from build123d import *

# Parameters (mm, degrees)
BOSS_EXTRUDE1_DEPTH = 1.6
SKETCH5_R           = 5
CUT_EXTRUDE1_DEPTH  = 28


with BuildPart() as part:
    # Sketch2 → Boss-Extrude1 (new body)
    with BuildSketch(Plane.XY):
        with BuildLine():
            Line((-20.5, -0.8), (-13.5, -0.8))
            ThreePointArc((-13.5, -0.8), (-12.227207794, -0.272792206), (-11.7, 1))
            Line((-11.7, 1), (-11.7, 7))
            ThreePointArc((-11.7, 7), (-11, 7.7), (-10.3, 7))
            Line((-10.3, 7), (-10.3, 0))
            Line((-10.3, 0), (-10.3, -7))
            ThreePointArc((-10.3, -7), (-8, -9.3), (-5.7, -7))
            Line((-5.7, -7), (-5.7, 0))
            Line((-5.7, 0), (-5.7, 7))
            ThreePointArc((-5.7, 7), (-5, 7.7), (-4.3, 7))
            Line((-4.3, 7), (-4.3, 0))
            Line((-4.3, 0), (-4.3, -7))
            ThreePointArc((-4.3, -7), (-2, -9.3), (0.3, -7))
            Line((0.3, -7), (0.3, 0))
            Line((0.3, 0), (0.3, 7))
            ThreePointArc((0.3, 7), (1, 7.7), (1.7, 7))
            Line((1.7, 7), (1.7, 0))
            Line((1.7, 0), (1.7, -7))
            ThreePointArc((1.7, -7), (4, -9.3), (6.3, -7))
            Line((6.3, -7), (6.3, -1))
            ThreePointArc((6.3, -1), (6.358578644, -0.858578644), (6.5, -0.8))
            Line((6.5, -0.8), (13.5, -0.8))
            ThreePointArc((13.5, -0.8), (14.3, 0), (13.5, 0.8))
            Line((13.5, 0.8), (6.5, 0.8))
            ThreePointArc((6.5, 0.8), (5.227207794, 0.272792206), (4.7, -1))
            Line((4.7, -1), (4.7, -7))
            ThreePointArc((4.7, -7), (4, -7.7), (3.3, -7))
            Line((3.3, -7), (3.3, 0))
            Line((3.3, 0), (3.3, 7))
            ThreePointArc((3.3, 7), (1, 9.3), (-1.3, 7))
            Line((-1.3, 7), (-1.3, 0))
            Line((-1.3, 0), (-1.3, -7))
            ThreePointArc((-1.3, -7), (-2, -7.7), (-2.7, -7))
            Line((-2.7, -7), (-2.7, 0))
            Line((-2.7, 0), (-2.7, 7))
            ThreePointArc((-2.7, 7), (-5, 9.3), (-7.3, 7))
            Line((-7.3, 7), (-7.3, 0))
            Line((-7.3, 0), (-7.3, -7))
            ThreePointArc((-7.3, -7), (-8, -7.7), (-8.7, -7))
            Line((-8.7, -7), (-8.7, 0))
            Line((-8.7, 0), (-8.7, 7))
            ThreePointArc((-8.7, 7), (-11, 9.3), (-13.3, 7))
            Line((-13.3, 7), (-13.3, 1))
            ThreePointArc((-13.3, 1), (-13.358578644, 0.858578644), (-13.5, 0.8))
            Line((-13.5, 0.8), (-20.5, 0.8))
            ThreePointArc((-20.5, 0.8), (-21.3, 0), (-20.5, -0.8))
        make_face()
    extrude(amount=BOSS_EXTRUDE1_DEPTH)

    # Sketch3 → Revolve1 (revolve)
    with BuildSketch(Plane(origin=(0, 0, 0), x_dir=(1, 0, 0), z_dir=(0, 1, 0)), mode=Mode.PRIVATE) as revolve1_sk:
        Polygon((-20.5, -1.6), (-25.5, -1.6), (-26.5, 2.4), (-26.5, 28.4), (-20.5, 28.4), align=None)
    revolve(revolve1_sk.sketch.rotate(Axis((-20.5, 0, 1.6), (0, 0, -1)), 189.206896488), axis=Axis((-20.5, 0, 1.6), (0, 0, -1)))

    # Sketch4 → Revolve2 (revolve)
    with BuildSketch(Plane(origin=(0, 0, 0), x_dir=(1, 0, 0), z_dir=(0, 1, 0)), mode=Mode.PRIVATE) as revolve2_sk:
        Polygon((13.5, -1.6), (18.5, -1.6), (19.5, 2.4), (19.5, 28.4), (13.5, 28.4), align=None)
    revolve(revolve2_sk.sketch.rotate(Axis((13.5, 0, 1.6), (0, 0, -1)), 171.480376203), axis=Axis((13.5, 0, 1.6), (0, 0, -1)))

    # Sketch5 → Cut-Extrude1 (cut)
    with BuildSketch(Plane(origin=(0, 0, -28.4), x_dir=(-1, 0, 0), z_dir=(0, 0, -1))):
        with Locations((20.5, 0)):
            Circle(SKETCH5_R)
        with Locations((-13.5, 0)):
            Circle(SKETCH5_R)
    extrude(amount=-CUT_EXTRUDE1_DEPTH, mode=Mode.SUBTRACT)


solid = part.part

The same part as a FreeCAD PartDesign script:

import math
import FreeCAD as App
import Part
import Sketcher

V = App.Vector
Q = App.Units.Quantity


def add_polygon(sketch, points):
    """Adds a closed chain of lines whose ends are joined by coincident constraints."""
    first, n = sketch.GeometryCount, len(points)
    for a, b in zip(points, points[1:] + points[:1]):
        sketch.addGeometry(Part.LineSegment(App.Vector(*a, 0), App.Vector(*b, 0)), False)
    for i in range(n):
        sketch.addConstraint(Sketcher.Constraint("Coincident", first + i, 2, first + (i + 1) % n, 1))

doc = App.newDocument("Part")
params = doc.addObject("Spreadsheet::Sheet", "Params")
for row, (alias, value) in enumerate([
    ("sketch1_radius", "1.8 mm"),
    ("sketch1_radius2", "0.7 mm"),
    ("sketch1_radius3", "2.3 mm"),
    ("sketch1_width", "7 mm"),
    ("sketch1_height", "6 mm"),
    ("pad1_length", "1.6 mm"),
    ("sketch2_width", "5 mm"),
    ("sketch2_width2", "6 mm"),
    ("sketch2_height", "30 mm"),
    ("sketch2_height2", "26 mm"),
    ("revolution_angle", "360 deg"),
    ("sketch3_width", "5 mm"),
    ("sketch3_width2", "6 mm"),
    ("sketch3_height", "26 mm"),
    ("sketch3_height2", "30 mm"),
    ("revolution2_angle", "360 deg"),
    ("sketch4_diameter", "10 mm"),
    ("pocket1_length", "28 mm"),
], start=1):
    params.set(f"A{row}", alias)
    params.set(f"B{row}", "=" + value)
    params.setAlias(f"B{row}", alias)

body = doc.addObject("PartDesign::Body", "Body")

sketch1 = body.newObject("Sketcher::SketchObject", "Sketch")
sketch1.AttachmentSupport = (doc.getObject("XY_Plane"), [""])
sketch1.MapMode = "FlatFace"
sketch1.addGeometry(Part.LineSegment(V(-20.5, -0.8, 0), V(-13.5, -0.8, 0)), False)
sketch1.addGeometry(Part.ArcOfCircle(Part.Circle(V(-13.5, 1, 0), V(0, 0, 1), 1.8), math.radians(-90), math.radians(0)), False)
sketch1.addGeometry(Part.LineSegment(V(-11.7, 1, 0), V(-11.7, 7, 0)), False)
sketch1.addGeometry(Part.ArcOfCircle(Part.Circle(V(-11, 7, 0), V(0, 0, 1), 0.7), math.radians(0), math.radians(180)), False)
sketch1.addGeometry(Part.LineSegment(V(-10.3, 7, 0), V(-10.3, -7, 0)), False)
sketch1.addGeometry(Part.ArcOfCircle(Part.Circle(V(-8, -7, 0), V(0, 0, 1), 2.3), math.radians(180), math.radians(360)), False)
sketch1.addGeometry(Part.LineSegment(V(-5.7, -7, 0), V(-5.7, 7, 0)), False)
sketch1.addGeometry(Part.ArcOfCircle(Part.Circle(V(-5, 7, 0), V(0, 0, 1), 0.7), math.radians(0), math.radians(180)), False)
sketch1.addGeometry(Part.LineSegment(V(-4.3, 7, 0), V(-4.3, -7, 0)), False)
sketch1.addGeometry(Part.ArcOfCircle(Part.Circle(V(-2, -7, 0), V(0, 0, 1), 2.3), math.radians(180), math.radians(360)), False)
sketch1.addGeometry(Part.LineSegment(V(0.3, -7, 0), V(0.3, 7, 0)), False)
sketch1.addGeometry(Part.ArcOfCircle(Part.Circle(V(1, 7, 0), V(0, 0, 1), 0.7), math.radians(0), math.radians(180)), False)
sketch1.addGeometry(Part.LineSegment(V(1.7, 7, 0), V(1.7, -7, 0)), False)
sketch1.addGeometry(Part.ArcOfCircle(Part.Circle(V(4, -7, 0), V(0, 0, 1), 2.3), math.radians(180), math.radians(360)), False)
sketch1.addGeometry(Part.LineSegment(V(6.3, -7, 0), V(6.3, -1, 0)), False)
sketch1.addGeometry(Part.ArcOfCircle(Part.Circle(V(6.5, -1, 0), V(0, 0, 1), 0.2), math.radians(90), math.radians(180)), False)
sketch1.addGeometry(Part.LineSegment(V(6.5, -0.8, 0), V(13.5, -0.8, 0)), False)
sketch1.addGeometry(Part.ArcOfCircle(Part.Circle(V(13.5, 0, 0), V(0, 0, 1), 0.8), math.radians(-90), math.radians(90)), False)
sketch1.addGeometry(Part.LineSegment(V(13.5, 0.8, 0), V(6.5, 0.8, 0)), False)
sketch1.addGeometry(Part.ArcOfCircle(Part.Circle(V(6.5, -1, 0), V(0, 0, 1), 1.8), math.radians(90), math.radians(180)), False)
sketch1.addGeometry(Part.LineSegment(V(4.7, -1, 0), V(4.7, -7, 0)), False)
sketch1.addGeometry(Part.ArcOfCircle(Part.Circle(V(4, -7, 0), V(0, 0, 1), 0.7), math.radians(180), math.radians(360)), False)
sketch1.addGeometry(Part.LineSegment(V(3.3, -7, 0), V(3.3, 7, 0)), False)
sketch1.addGeometry(Part.ArcOfCircle(Part.Circle(V(1, 7, 0), V(0, 0, 1), 2.3), math.radians(0), math.radians(180)), False)
sketch1.addGeometry(Part.LineSegment(V(-1.3, 7, 0), V(-1.3, -7, 0)), False)
sketch1.addGeometry(Part.ArcOfCircle(Part.Circle(V(-2, -7, 0), V(0, 0, 1), 0.7), math.radians(180), math.radians(360)), False)
sketch1.addGeometry(Part.LineSegment(V(-2.7, -7, 0), V(-2.7, 7, 0)), False)
sketch1.addGeometry(Part.ArcOfCircle(Part.Circle(V(-5, 7, 0), V(0, 0, 1), 2.3), math.radians(0), math.radians(180)), False)
sketch1.addGeometry(Part.LineSegment(V(-7.3, 7, 0), V(-7.3, -7, 0)), False)
sketch1.addGeometry(Part.ArcOfCircle(Part.Circle(V(-8, -7, 0), V(0, 0, 1), 0.7), math.radians(180), math.radians(360)), False)
sketch1.addGeometry(Part.LineSegment(V(-8.7, -7, 0), V(-8.7, 7, 0)), False)
sketch1.addGeometry(Part.ArcOfCircle(Part.Circle(V(-11, 7, 0), V(0, 0, 1), 2.3), math.radians(0), math.radians(180)), False)
sketch1.addGeometry(Part.LineSegment(V(-13.3, 7, 0), V(-13.3, 1, 0)), False)
sketch1.addGeometry(Part.ArcOfCircle(Part.Circle(V(-13.5, 1, 0), V(0, 0, 1), 0.2), math.radians(-90), math.radians(0)), False)
sketch1.addGeometry(Part.LineSegment(V(-13.5, 0.8, 0), V(-20.5, 0.8, 0)), False)
sketch1.addGeometry(Part.ArcOfCircle(Part.Circle(V(-20.5, 0, 0), V(0, 0, 1), 0.8), math.radians(90), math.radians(270)), False)
sketch1.addConstraint(Sketcher.Constraint("Tangent", 0, 2, 1, 1))
sketch1.addConstraint(Sketcher.Constraint("Tangent", 1, 2, 2, 1))
sketch1.addConstraint(Sketcher.Constraint("Tangent", 2, 2, 3, 2))
sketch1.addConstraint(Sketcher.Constraint("Tangent", 3, 1, 4, 1))
sketch1.addConstraint(Sketcher.Constraint("Tangent", 4, 2, 5, 1))
sketch1.addConstraint(Sketcher.Constraint("Tangent", 5, 2, 6, 1))
sketch1.addConstraint(Sketcher.Constraint("Tangent", 6, 2, 7, 2))
sketch1.addConstraint(Sketcher.Constraint("Tangent", 7, 1, 8, 1))
sketch1.addConstraint(Sketcher.Constraint("Tangent", 8, 2, 9, 1))
sketch1.addConstraint(Sketcher.Constraint("Tangent", 9, 2, 10, 1))
sketch1.addConstraint(Sketcher.Constraint("Tangent", 10, 2, 11, 2))
sketch1.addConstraint(Sketcher.Constraint("Tangent", 11, 1, 12, 1))
sketch1.addConstraint(Sketcher.Constraint("Tangent", 12, 2, 13, 1))
sketch1.addConstraint(Sketcher.Constraint("Tangent", 13, 2, 14, 1))
sketch1.addConstraint(Sketcher.Constraint("Tangent", 14, 2, 15, 2))
sketch1.addConstraint(Sketcher.Constraint("Tangent", 15, 1, 16, 1))
sketch1.addConstraint(Sketcher.Constraint("Tangent", 16, 2, 17, 1))
sketch1.addConstraint(Sketcher.Constraint("Tangent", 17, 2, 18, 1))
sketch1.addConstraint(Sketcher.Constraint("Tangent", 18, 2, 19, 1))
sketch1.addConstraint(Sketcher.Constraint("Tangent", 19, 2, 20, 1))
sketch1.addConstraint(Sketcher.Constraint("Tangent", 20, 2, 21, 2))
sketch1.addConstraint(Sketcher.Constraint("Tangent", 21, 1, 22, 1))
sketch1.addConstraint(Sketcher.Constraint("Tangent", 22, 2, 23, 1))
sketch1.addConstraint(Sketcher.Constraint("Tangent", 23, 2, 24, 1))
sketch1.addConstraint(Sketcher.Constraint("Tangent", 24, 2, 25, 2))
sketch1.addConstraint(Sketcher.Constraint("Tangent", 25, 1, 26, 1))
sketch1.addConstraint(Sketcher.Constraint("Tangent", 26, 2, 27, 1))
sketch1.addConstraint(Sketcher.Constraint("Tangent", 27, 2, 28, 1))
sketch1.addConstraint(Sketcher.Constraint("Tangent", 28, 2, 29, 2))
sketch1.addConstraint(Sketcher.Constraint("Tangent", 29, 1, 30, 1))
sketch1.addConstraint(Sketcher.Constraint("Tangent", 30, 2, 31, 1))
sketch1.addConstraint(Sketcher.Constraint("Tangent", 31, 2, 32, 1))
sketch1.addConstraint(Sketcher.Constraint("Tangent", 32, 2, 33, 2))
sketch1.addConstraint(Sketcher.Constraint("Tangent", 33, 1, 34, 1))
sketch1.addConstraint(Sketcher.Constraint("Tangent", 34, 2, 35, 1))
sketch1.addConstraint(Sketcher.Constraint("Tangent", 35, 2, 0, 1))
sketch1.addConstraint(Sketcher.Constraint("Horizontal", 0))
sketch1.addConstraint(Sketcher.Constraint("Vertical", 2))
sketch1.addConstraint(Sketcher.Constraint("Vertical", 4))
sketch1.addConstraint(Sketcher.Constraint("Vertical", 6))
sketch1.addConstraint(Sketcher.Constraint("Vertical", 8))
sketch1.addConstraint(Sketcher.Constraint("Vertical", 10))
sketch1.addConstraint(Sketcher.Constraint("Vertical", 12))
sketch1.addConstraint(Sketcher.Constraint("Vertical", 14))
sketch1.addConstraint(Sketcher.Constraint("Horizontal", 16))
sketch1.addConstraint(Sketcher.Constraint("Horizontal", 18))
sketch1.addConstraint(Sketcher.Constraint("Vertical", 20))
sketch1.addConstraint(Sketcher.Constraint("Vertical", 22))
sketch1.addConstraint(Sketcher.Constraint("Vertical", 24))
sketch1.addConstraint(Sketcher.Constraint("Vertical", 26))
sketch1.addConstraint(Sketcher.Constraint("Vertical", 28))
sketch1.addConstraint(Sketcher.Constraint("Vertical", 30))
sketch1.addConstraint(Sketcher.Constraint("Vertical", 32))
sketch1.addConstraint(Sketcher.Constraint("Horizontal", 34))
sketch1.addConstraint(Sketcher.Constraint("Coincident", 19, 3, 15, 3))
sketch1.addConstraint(Sketcher.Constraint("Coincident", 21, 3, 13, 3))
sketch1.addConstraint(Sketcher.Constraint("Coincident", 23, 3, 11, 3))
sketch1.addConstraint(Sketcher.Constraint("Coincident", 25, 3, 9, 3))
sketch1.addConstraint(Sketcher.Constraint("Coincident", 27, 3, 7, 3))
sketch1.addConstraint(Sketcher.Constraint("Coincident", 29, 3, 5, 3))
sketch1.addConstraint(Sketcher.Constraint("Coincident", 31, 3, 3, 3))
sketch1.addConstraint(Sketcher.Constraint("Coincident", 33, 3, 1, 3))
sketch1.addConstraint(Sketcher.Constraint("Equal", 3, 7))
sketch1.addConstraint(Sketcher.Constraint("Equal", 5, 9))
sketch1.addConstraint(Sketcher.Constraint("Equal", 7, 11))
sketch1.addConstraint(Sketcher.Constraint("Equal", 9, 13))
sketch1.addConstraint(Sketcher.Constraint("Equal", 1, 19))
sketch1.addConstraint(Sketcher.Constraint("Equal", 11, 21))
sketch1.addConstraint(Sketcher.Constraint("Symmetric", 0, 2, 17, 2, -1, 1))
sketch1.addConstraint(Sketcher.Constraint("PointOnObject", 17, 3, -1))
sketch1.addConstraint(Sketcher.Constraint("Horizontal", 3, 3, 7, 3))
sketch1.addConstraint(Sketcher.Constraint("Horizontal", 5, 3, 9, 3))
sketch1.addConstraint(Sketcher.Constraint("Horizontal", 7, 3, 11, 3))
sketch1.addConstraint(Sketcher.Constraint("Horizontal", 9, 3, 13, 3))
sketch1.addConstraint(Sketcher.Constraint("Equal", 0, 16))
sketch1.addConstraint(Sketcher.Constraint("Equal", 2, 14))
sketch1.addConstraint(Sketcher.Constraint("Radius", 1, Q("1.8 mm")))
sketch1.addConstraint(Sketcher.Constraint("Radius", 3, Q("0.7 mm")))
sketch1.addConstraint(Sketcher.Constraint("Radius", 5, Q("2.3 mm")))
sketch1.addConstraint(Sketcher.Constraint("DistanceX", 0, 1, 0, 2, Q("7 mm")))
sketch1.addConstraint(Sketcher.Constraint("DistanceY", 2, 1, 2, 2, Q("6 mm")))
sketch1.setExpression("Constraints[76]", "Params.sketch1_radius")
sketch1.setExpression("Constraints[77]", "Params.sketch1_radius2")
sketch1.setExpression("Constraints[78]", "Params.sketch1_radius3")
sketch1.setExpression("Constraints[79]", "Params.sketch1_width")
sketch1.setExpression("Constraints[80]", "Params.sketch1_height")
pad1 = body.newObject("PartDesign::Pad", "Pad")
pad1.Profile = sketch1
pad1.setExpression("Length", "Params.pad1_length")

sketch2 = body.newObject("Sketcher::SketchObject", "Sketch001")
sketch2.AttachmentSupport = (doc.getObject("XZ_Plane"), [""])
sketch2.MapMode = "FlatFace"
add_polygon(sketch2, [(-25.5, 1.6), (-20.5, 1.6), (-20.5, -28.4), (-26.5, -28.4), (-26.5, -2.4)])
sketch2.addGeometry(Part.LineSegment(V(-20.5, 1.6, 0), V(-20.5, -28.4, 0)), True)
sketch2.addConstraint(Sketcher.Constraint("Horizontal", 0))
sketch2.addConstraint(Sketcher.Constraint("Vertical", 1))
sketch2.addConstraint(Sketcher.Constraint("Horizontal", 2))
sketch2.addConstraint(Sketcher.Constraint("Vertical", 3))
sketch2.addConstraint(Sketcher.Constraint("Vertical", 5))
sketch2.addConstraint(Sketcher.Constraint("Coincident", 5, 1, 0, 2))
sketch2.addConstraint(Sketcher.Constraint("Horizontal", 2, 2, 5, 2))
sketch2.addConstraint(Sketcher.Constraint("DistanceX", 0, 1, 0, 2, Q("5 mm")))
sketch2.addConstraint(Sketcher.Constraint("DistanceX", 2, 2, 2, 1, Q("6 mm")))
sketch2.addConstraint(Sketcher.Constraint("DistanceY", 1, 2, 1, 1, Q("30 mm")))
sketch2.addConstraint(Sketcher.Constraint("DistanceY", 3, 1, 3, 2, Q("26 mm")))
sketch2.addConstraint(Sketcher.Constraint("DistanceX", 0, 2, -1, 1, Q("20.5 mm")))
sketch2.addConstraint(Sketcher.Constraint("DistanceY", -1, 1, 0, 2, Q("1.6 mm")))
sketch2.setExpression("Constraints[12]", "Params.sketch2_width")
sketch2.setExpression("Constraints[13]", "Params.sketch2_width2")
sketch2.setExpression("Constraints[14]", "Params.sketch2_height")
sketch2.setExpression("Constraints[15]", "Params.sketch2_height2")
revolution = body.newObject("PartDesign::Revolution", "Revolution")
revolution.Profile = sketch2
revolution.ReferenceAxis = (sketch2, ["Axis0"])
revolution.setExpression("Angle", "Params.revolution_angle")

sketch3 = body.newObject("Sketcher::SketchObject", "Sketch002")
sketch3.AttachmentSupport = (doc.getObject("XZ_Plane"), [""])
sketch3.MapMode = "FlatFace"
add_polygon(sketch3, [(13.5, 1.6), (18.5, 1.6), (19.5, -2.4), (19.5, -28.4), (13.5, -28.4)])
sketch3.addGeometry(Part.LineSegment(V(13.5, 1.6, 0), V(13.5, -28.4, 0)), True)
sketch3.addConstraint(Sketcher.Constraint("Horizontal", 0))
sketch3.addConstraint(Sketcher.Constraint("Vertical", 2))
sketch3.addConstraint(Sketcher.Constraint("Horizontal", 3))
sketch3.addConstraint(Sketcher.Constraint("Vertical", 4))
sketch3.addConstraint(Sketcher.Constraint("Vertical", 5))
sketch3.addConstraint(Sketcher.Constraint("Coincident", 5, 1, 4, 2))
sketch3.addConstraint(Sketcher.Constraint("Horizontal", 2, 2, 5, 2))
sketch3.addConstraint(Sketcher.Constraint("DistanceX", 0, 1, 0, 2, Q("5 mm")))
sketch3.addConstraint(Sketcher.Constraint("DistanceX", 3, 2, 3, 1, Q("6 mm")))
sketch3.addConstraint(Sketcher.Constraint("DistanceY", 2, 2, 2, 1, Q("26 mm")))
sketch3.addConstraint(Sketcher.Constraint("DistanceY", 4, 1, 4, 2, Q("30 mm")))
sketch3.addConstraint(Sketcher.Constraint("DistanceX", -1, 1, 0, 2, Q("18.5 mm")))
sketch3.addConstraint(Sketcher.Constraint("DistanceY", -1, 1, 0, 2, Q("1.6 mm")))
sketch3.setExpression("Constraints[12]", "Params.sketch3_width")
sketch3.setExpression("Constraints[13]", "Params.sketch3_width2")
sketch3.setExpression("Constraints[14]", "Params.sketch3_height")
sketch3.setExpression("Constraints[15]", "Params.sketch3_height2")
revolution2 = body.newObject("PartDesign::Revolution", "Revolution001")
revolution2.Profile = sketch3
revolution2.ReferenceAxis = (sketch3, ["Axis0"])
revolution2.setExpression("Angle", "Params.revolution2_angle")

sketch4 = body.newObject("Sketcher::SketchObject", "Sketch003")
sketch4.AttachmentSupport = (doc.getObject("XY_Plane"), [""])
sketch4.MapMode = "FlatFace"
sketch4.AttachmentOffset = App.Placement(V(0, 0, -28.4), App.Rotation())
sketch4.addGeometry(Part.Circle(V(-20.5, 0, 0), V(0, 0, 1), 5), False)
sketch4.addGeometry(Part.Circle(V(13.5, 0, 0), V(0, 0, 1), 5), False)
sketch4.addConstraint(Sketcher.Constraint("Equal", 0, 1))
sketch4.addConstraint(Sketcher.Constraint("PointOnObject", 0, 3, -1))
sketch4.addConstraint(Sketcher.Constraint("PointOnObject", 1, 3, -1))
sketch4.addConstraint(Sketcher.Constraint("Diameter", 0, Q("10 mm")))
sketch4.addConstraint(Sketcher.Constraint("DistanceX", 0, 3, 1, 3, Q("34 mm")))
sketch4.addConstraint(Sketcher.Constraint("DistanceX", 0, 3, -1, 1, Q("20.5 mm")))
sketch4.setExpression("Constraints[3]", "Params.sketch4_diameter")
pocket1 = body.newObject("PartDesign::Pocket", "Pocket")
pocket1.Profile = sketch4
pocket1.setExpression("Length", "Params.pocket1_length")
pocket1.Reversed = True

doc.recompute()
